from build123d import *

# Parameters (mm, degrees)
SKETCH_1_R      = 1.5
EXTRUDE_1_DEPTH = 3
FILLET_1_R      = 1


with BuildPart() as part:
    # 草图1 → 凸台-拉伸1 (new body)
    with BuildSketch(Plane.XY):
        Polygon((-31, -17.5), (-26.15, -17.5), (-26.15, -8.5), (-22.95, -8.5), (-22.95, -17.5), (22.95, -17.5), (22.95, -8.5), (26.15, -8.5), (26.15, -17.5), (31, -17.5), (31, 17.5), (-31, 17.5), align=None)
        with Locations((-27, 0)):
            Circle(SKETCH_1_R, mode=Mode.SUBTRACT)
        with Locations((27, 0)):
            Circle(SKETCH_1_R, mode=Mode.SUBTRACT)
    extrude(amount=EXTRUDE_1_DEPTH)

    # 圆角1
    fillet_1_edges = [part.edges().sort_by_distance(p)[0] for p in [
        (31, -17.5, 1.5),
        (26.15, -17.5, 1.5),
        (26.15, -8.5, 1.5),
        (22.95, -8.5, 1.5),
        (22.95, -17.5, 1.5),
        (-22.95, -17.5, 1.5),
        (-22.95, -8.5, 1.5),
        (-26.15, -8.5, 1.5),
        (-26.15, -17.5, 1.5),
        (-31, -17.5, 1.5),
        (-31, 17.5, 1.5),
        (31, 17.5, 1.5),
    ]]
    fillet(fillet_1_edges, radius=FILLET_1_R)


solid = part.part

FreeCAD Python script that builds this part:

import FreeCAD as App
import Part
import Sketcher


def edges_at(feature, points):
    """Names of the edges that pass closest to the given points."""
    edges = feature.Shape.Edges
    near = lambda p: min(range(len(edges)), key=lambda i: edges[i].distToShape(Part.Vertex(*p))[0])
    return sorted({f"Edge{near(p) + 1}" for p in points})


def add_polygon(sketch, points):
    """Adds a closed chain of lines whose ends are joined by coincident constraints."""
    first, n = sketch.GeometryCount, len(points)
    for a, b in zip(points, points[1:] + points[:1]):
        sketch.addGeometry(Part.LineSegment(App.Vector(*a, 0), App.Vector(*b, 0)), False)
    for i in range(n):
        sketch.addConstraint(Sketcher.Constraint("Coincident", first + i, 2, first + (i + 1) % n, 1))

doc = App.newDocument("Part")
params = doc.addObject("Spreadsheet::Sheet", "Params")
for row, (alias, value) in enumerate([
    ("sketch1_diameter", "3 mm"),
    ("sketch1_width", "62 mm"),
    ("sketch1_height", "9 mm"),
    ("sketch1_height2", "35 mm"),
    ("sketch1_width2", "3.2 mm"),
    ("pad1_length", "3 mm"),
    ("fillet_radius", "1 mm"),
], start=1):
    params.set(f"A{row}", alias)
    params.set(f"B{row}", "=" + value)
    params.setAlias(f"B{row}", alias)

body = doc.addObject("PartDesign::Body", "Body")

sketch1 = doc.addObject("Sketcher::SketchObject", "Sketch")
body.addObject(sketch1)
sketch1.AttachmentSupport = (doc.XY_Plane, [""])
sketch1.MapMode = "FlatFace"
add_polygon(sketch1, [(-31, -17.5), (-26.1, -17.5), (-26.1, -8.5), (-22.9, -8.5), (-22.9, -17.5), (22.9, -17.5), (22.9, -8.5), (26.1, -8.5), (26.1, -17.5), (31, -17.5), (31, 17.5), (-31, 17.5)])
sketch1.addGeometry(Part.Circle(App.Vector(-27, 0, 0), App.Vector(0, 0, 1), 1.5), False)
sketch1.addGeometry(Part.Circle(App.Vector(27, 0, 0), App.Vector(0, 0, 1), 1.5), False)
sketch1.addConstraint([
    Sketcher.Constraint("Horizontal", 0),
    Sketcher.Constraint("Vertical", 1),
    Sketcher.Constraint("Horizontal", 2),
    Sketcher.Constraint("Vertical", 3),
    Sketcher.Constraint("Horizontal", 4),
    Sketcher.Constraint("Vertical", 5),
    Sketcher.Constraint("Horizontal", 6),
    Sketcher.Constraint("Vertical", 7),
    Sketcher.Constraint("Horizontal", 8),
    Sketcher.Constraint("Vertical", 9),
    Sketcher.Constraint("Horizontal", 10),
    Sketcher.Constraint("Vertical", 11),
    Sketcher.Constraint("Equal", 12, 13),
    Sketcher.Constraint("Symmetric", 12, 3, 13, 3, -1, 1),
    Sketcher.Constraint("Symmetric", 8, 2, 10, 2, -1, 1),
    Sketcher.Constraint("Symmetric", 2, 2, 5, 2, -2),
    Sketcher.Constraint("Symmetric", 0, 2, 7, 2, -2),
    Sketcher.Constraint("PointOnObject", 12, 3, -1),
    Sketcher.Constraint("Horizontal", 0, 2, 3, 2),
    Sketcher.Constraint("Diameter", 12, 3.0),
    Sketcher.Constraint("DistanceX", 10, 2, 10, 1, 62.0),
    Sketcher.Constraint("DistanceY", 1, 1, 1, 2, 9.0),
    Sketcher.Constraint("DistanceY", 9, 1, 9, 2, 35.0),
    Sketcher.Constraint("DistanceX", 2, 1, 2, 2, 3.2),
    Sketcher.Constraint("DistanceX", 4, 1, 4, 2, 45.9),
    Sketcher.Constraint("DistanceX", 12, 3, -1, 1, 27.0),
])
sketch1.setExpression("Constraints[31]", "Params.sketch1_diameter")
sketch1.setExpression("Constraints[32]", "Params.sketch1_width")
sketch1.setExpression("Constraints[33]", "Params.sketch1_height")
sketch1.setExpression("Constraints[34]", "Params.sketch1_height2")
sketch1.setExpression("Constraints[35]", "Params.sketch1_width2")
pad1 = doc.addObject("PartDesign::Pad", "Pad")
body.addObject(pad1)
pad1.Profile = sketch1
pad1.setExpression("Length", "Params.pad1_length")
doc.recompute()

fillet = doc.addObject("PartDesign::Fillet", "Fillet")
body.addObject(fillet)
fillet.Base = (pad1, edges_at(pad1, [
    (31, -17.5, 1.5),
    (26.15, -17.5, 1.5),
    (26.15, -8.5, 1.5),
    (22.95, -8.5, 1.5),
    (22.95, -17.5, 1.5),
    (-22.95, -17.5, 1.5),
    (-22.95, -8.5, 1.5),
    (-26.15, -8.5, 1.5),
    (-26.15, -17.5, 1.5),
    (-31, -17.5, 1.5),
    (-31, 17.5, 1.5),
    (31, 17.5, 1.5),
]))
fillet.setExpression("Radius", "Params.fillet_radius")

doc.recompute()
